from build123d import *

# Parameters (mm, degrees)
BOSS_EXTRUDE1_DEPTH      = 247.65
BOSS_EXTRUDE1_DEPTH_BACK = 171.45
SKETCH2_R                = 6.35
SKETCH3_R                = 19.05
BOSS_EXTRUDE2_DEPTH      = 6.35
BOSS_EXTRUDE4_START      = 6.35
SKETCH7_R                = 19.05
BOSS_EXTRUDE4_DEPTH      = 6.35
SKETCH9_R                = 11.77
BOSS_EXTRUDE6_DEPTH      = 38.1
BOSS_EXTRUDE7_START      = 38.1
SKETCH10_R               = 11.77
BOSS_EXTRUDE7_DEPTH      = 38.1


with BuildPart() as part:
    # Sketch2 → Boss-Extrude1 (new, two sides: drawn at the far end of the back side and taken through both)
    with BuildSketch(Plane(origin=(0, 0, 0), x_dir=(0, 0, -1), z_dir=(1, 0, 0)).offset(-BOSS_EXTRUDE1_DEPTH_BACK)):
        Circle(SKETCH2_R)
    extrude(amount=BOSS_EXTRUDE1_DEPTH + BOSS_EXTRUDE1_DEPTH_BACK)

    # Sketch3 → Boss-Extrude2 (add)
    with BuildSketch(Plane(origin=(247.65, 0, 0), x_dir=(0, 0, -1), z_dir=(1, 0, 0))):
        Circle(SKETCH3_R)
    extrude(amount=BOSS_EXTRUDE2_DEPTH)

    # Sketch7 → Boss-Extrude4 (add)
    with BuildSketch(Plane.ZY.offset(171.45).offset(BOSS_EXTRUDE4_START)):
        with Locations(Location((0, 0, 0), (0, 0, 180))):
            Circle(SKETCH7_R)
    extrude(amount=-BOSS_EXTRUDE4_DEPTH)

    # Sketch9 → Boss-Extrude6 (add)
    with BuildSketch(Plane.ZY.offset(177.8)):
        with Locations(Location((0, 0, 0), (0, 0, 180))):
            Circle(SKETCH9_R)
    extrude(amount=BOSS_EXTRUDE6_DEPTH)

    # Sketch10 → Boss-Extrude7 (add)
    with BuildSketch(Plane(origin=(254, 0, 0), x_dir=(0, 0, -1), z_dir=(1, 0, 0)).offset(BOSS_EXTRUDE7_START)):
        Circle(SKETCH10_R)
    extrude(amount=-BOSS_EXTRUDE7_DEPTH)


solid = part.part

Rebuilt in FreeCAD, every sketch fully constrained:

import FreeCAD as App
import Part
import Sketcher
from FreeCAD import Vector
Q = App.Units.Quantity

doc = App.newDocument("Part")
params = doc.addObject("Spreadsheet::Sheet", "Params")
for row, (alias, value) in enumerate([
    ("sketch1_diameter", "0.5 in"),
    ("pad1_length", "9.75 in"),
    ("pad1_length2", "6.75 in"),
    ("sketch2_diameter", "1.5 in"),
    ("pad2_length", "0.25 in"),
    ("sketch3_diameter", "1.5 in"),
    ("pad3_length", "0.25 in"),
    ("pad4_length", "1.5 in"),
    ("pad5_length", "1.5 in"),
], start=1):
    params.set(f"A{row}", alias)
    params.set(f"B{row}", "=" + value)
    params.setAlias(f"B{row}", alias)

body = doc.addObject("PartDesign::Body", "Body")

# Sketch on YZ plane
sketch1 = body.newObject("Sketcher::SketchObject", "Sketch")
sketch1.AttachmentSupport = (doc.getObject("YZ_Plane"), [""])
sketch1.MapMode = "FlatFace"
sketch1.addGeometry(Part.Circle(Vector(0, 0, 0), Vector(0, 0, 1), 6), False)
sketch1.addConstraint([
    Sketcher.Constraint("Coincident", 0, 3, -1, 1),
    Sketcher.Constraint("Diameter", 0, Q("0.5 in")),
])
sketch1.setExpression("Constraints[1]", "Params.sketch1_diameter")
pad1 = body.newObject("PartDesign::Pad", "Pad")
pad1.Profile = sketch1
pad1.Type = "TwoLengths"
pad1.setExpression("Length", "Params.pad1_length")
pad1.setExpression("Length2", "Params.pad1_length2")

# Sketch on YZ plane
sketch2 = body.newObject("Sketcher::SketchObject", "Sketch001")
sketch2.AttachmentSupport = (doc.getObject("YZ_Plane"), [""])
sketch2.MapMode = "FlatFace"
sketch2.AttachmentOffset = App.Placement(Vector(0, 0, 9.75 * 25.4), App.Rotation())
sketch2.addGeometry(Part.Circle(Vector(0, 0, 0), Vector(0, 0, 1), 19), False)
sketch2.addConstraint([
    Sketcher.Constraint("Coincident", 0, 3, -1, 1),
    Sketcher.Constraint("Diameter", 0, Q("1.5 in")),
])
sketch2.setExpression("Constraints[1]", "Params.sketch2_diameter")
pad2 = body.newObject("PartDesign::Pad", "Pad001")
pad2.Profile = sketch2
pad2.setExpression("Length", "Params.pad2_length")

# Sketch on YZ plane
sketch3 = body.newObject("Sketcher::SketchObject", "Sketch002")
sketch3.AttachmentSupport = (doc.getObject("YZ_Plane"), [""])
sketch3.MapMode = "FlatFace"
sketch3.AttachmentOffset = App.Placement(Vector(0, 0, -7 * 25.4), App.Rotation())
sketch3.addGeometry(Part.Circle(Vector(0, 0, 0), Vector(0, 0, 1), 19), False)
sketch3.addConstraint([
    Sketcher.Constraint("Coincident", 0, 3, -1, 1),
    Sketcher.Constraint("Diameter", 0, Q("1.5 in")),
])
sketch3.setExpression("Constraints[1]", "Params.sketch3_diameter")
pad3 = body.newObject("PartDesign::Pad", "Pad002")
pad3.Profile = sketch3
pad3.setExpression("Length", "Params.pad3_length")

# Sketch on YZ plane
sketch4 = body.newObject("Sketcher::SketchObject", "Sketch003")
sketch4.AttachmentSupport = (doc.getObject("YZ_Plane"), [""])
sketch4.MapMode = "FlatFace"
sketch4.AttachmentOffset = App.Placement(Vector(0, 0, -7 * 25.4), App.Rotation())
sketch4.addGeometry(Part.Circle(Vector(0, 0, 0), Vector(0, 0, 1), 12), False)
sketch4.addConstraint([
    Sketcher.Constraint("Coincident", 0, 3, -1, 1),
    Sketcher.Constraint("Diameter", 0, Q("23.54 mm")),
])
pad4 = body.newObject("PartDesign::Pad", "Pad003")
pad4.Profile = sketch4
pad4.setExpression("Length", "Params.pad4_length")
pad4.Reversed = True

# Sketch on YZ plane
sketch5 = body.newObject("Sketcher::SketchObject", "Sketch004")
sketch5.AttachmentSupport = (doc.getObject("YZ_Plane"), [""])
sketch5.MapMode = "FlatFace"
sketch5.AttachmentOffset = App.Placement(Vector(0, 0, 11.5 * 25.4), App.Rotation())
sketch5.addGeometry(Part.Circle(Vector(0, 0, 0), Vector(0, 0, 1), 12), False)
sketch5.addConstraint([
    Sketcher.Constraint("Coincident", 0, 3, -1, 1),
    Sketcher.Constraint("Diameter", 0, Q("23.54 mm")),
])
pad5 = body.newObject("PartDesign::Pad", "Pad004")
pad5.Profile = sketch5
pad5.setExpression("Length", "Params.pad5_length")
pad5.Reversed = True

doc.recompute()
